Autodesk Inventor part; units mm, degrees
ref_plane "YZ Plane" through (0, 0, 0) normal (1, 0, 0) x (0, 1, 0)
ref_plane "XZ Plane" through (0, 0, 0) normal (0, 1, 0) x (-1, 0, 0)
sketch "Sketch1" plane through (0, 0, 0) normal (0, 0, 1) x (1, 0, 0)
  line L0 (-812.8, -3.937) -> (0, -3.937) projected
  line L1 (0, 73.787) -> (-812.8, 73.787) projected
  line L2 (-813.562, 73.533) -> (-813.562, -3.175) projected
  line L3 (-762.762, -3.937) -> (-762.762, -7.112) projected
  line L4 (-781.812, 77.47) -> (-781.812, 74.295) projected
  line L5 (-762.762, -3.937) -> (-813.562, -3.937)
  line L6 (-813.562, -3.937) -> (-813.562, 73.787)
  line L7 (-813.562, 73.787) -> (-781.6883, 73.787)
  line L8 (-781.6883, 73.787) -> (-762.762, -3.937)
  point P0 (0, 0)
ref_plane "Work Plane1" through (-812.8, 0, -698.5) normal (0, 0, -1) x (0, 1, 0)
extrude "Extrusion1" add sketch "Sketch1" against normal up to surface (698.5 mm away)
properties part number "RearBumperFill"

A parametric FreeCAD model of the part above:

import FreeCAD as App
import Part
import Sketcher

V = App.Vector
Q = App.Units.Quantity

doc = App.newDocument("Part")
params = doc.addObject("Spreadsheet::Sheet", "Params")
for row, (alias, value) in enumerate([
    ("sketch1_width", "2 in"),
    ("sketch1_height", "3.06 in"),
    ("pad1_length", "27.5 in"),
], start=1):
    params.set(f"A{row}", alias)
    params.set(f"B{row}", "=" + value)
    params.setAlias(f"B{row}", alias)

body = doc.addObject("PartDesign::Body", "Body")

# Sketch on XY plane
sketch1 = body.newObject("Sketcher::SketchObject", "Sketch")
sketch1.AttachmentSupport = (doc.getObject("XY_Plane"), [""])
sketch1.MapMode = "FlatFace"
sketch1.addGeometry(Part.LineSegment(V(-813.562, -3.937, 0), V(-762.762, -3.937, 0)), False)
sketch1.addGeometry(Part.LineSegment(V(-762.762, -3.937, 0), V(-781.6883, 73.787, 0)), False)
sketch1.addGeometry(Part.LineSegment(V(-781.6883, 73.787, 0), V(-813.562, 73.787, 0)), False)
sketch1.addGeometry(Part.LineSegment(V(-813.562, 73.787, 0), V(-813.562, -3.937, 0)), False)
sketch1.addConstraint(Sketcher.Constraint("Coincident", 0, 2, 1, 1))
sketch1.addConstraint(Sketcher.Constraint("Coincident", 1, 2, 2, 1))
sketch1.addConstraint(Sketcher.Constraint("Coincident", 2, 2, 3, 1))
sketch1.addConstraint(Sketcher.Constraint("Coincident", 3, 2, 0, 1))
sketch1.addConstraint(Sketcher.Constraint("Horizontal", 0))
sketch1.addConstraint(Sketcher.Constraint("Horizontal", 2))
sketch1.addConstraint(Sketcher.Constraint("Vertical", 3))
sketch1.addConstraint(Sketcher.Constraint("DistanceX", 0, 1, 0, 2, Q("2 in")))
sketch1.addConstraint(Sketcher.Constraint("DistanceY", 3, 2, 3, 1, Q("3.06 in")))
sketch1.addConstraint(Sketcher.Constraint("DistanceX", 0, 2, -1, 1, Q("30.03 in")))
sketch1.addConstraint(Sketcher.Constraint("DistanceY", 0, 2, -1, 1, Q("0.155 in")))
sketch1.addConstraint(Sketcher.Constraint("DistanceX", 2, 2, 2, 1, 31.8737))
sketch1.setExpression("Constraints[7]", "Params.sketch1_width")
sketch1.setExpression("Constraints[8]", "Params.sketch1_height")
pad1 = body.newObject("PartDesign::Pad", "Pad")
pad1.Profile = sketch1
pad1.setExpression("Length", "Params.pad1_length")
pad1.Reversed = True

doc.recompute()
